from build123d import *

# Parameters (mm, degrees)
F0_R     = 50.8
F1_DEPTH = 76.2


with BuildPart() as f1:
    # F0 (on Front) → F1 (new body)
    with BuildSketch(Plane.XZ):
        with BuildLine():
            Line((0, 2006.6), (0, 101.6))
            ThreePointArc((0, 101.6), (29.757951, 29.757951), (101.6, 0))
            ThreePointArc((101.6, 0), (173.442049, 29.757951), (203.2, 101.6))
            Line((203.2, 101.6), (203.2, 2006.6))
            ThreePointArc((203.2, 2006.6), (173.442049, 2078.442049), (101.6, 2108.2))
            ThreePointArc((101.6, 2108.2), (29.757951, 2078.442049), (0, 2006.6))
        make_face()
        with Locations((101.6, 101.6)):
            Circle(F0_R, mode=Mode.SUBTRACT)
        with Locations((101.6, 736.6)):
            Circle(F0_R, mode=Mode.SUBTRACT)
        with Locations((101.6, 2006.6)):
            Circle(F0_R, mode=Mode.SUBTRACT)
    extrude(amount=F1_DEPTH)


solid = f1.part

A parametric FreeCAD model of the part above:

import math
import FreeCAD as App
import Part
import Sketcher
Q = App.Units.Quantity

doc = App.newDocument("Part")
body = doc.addObject("PartDesign::Body", "Body")

sketch1 = body.newObject("Sketcher::SketchObject", "Sketch")
sketch1.AttachmentSupport = (doc.getObject("XZ_Plane"), [""])
sketch1.MapMode = "FlatFace"
sketch1.addGeometry([
    Part.LineSegment(App.Vector(0, 2007, 0), App.Vector(0, 102, 0)),
    Part.ArcOfCircle(Part.Circle(App.Vector(102, 102, 0), App.Vector(0, 0, 1), 102), math.radians(180), math.radians(270)),
    Part.ArcOfCircle(Part.Circle(App.Vector(102, 102, 0), App.Vector(0, 0, 1), 102), math.radians(-90), math.radians(0)),
    Part.LineSegment(App.Vector(203, 102, 0), App.Vector(203, 2007, 0)),
    Part.ArcOfCircle(Part.Circle(App.Vector(102, 2007, 0), App.Vector(0, 0, 1), 102), math.radians(0), math.radians(90)),
    Part.ArcOfCircle(Part.Circle(App.Vector(102, 2007, 0), App.Vector(0, 0, 1), 102), math.radians(90), math.radians(180)),
    Part.Circle(App.Vector(102, 102, 0), App.Vector(0, 0, 1), 51),
    Part.Circle(App.Vector(102, 737, 0), App.Vector(0, 0, 1), 51),
    Part.Circle(App.Vector(102, 2007, 0), App.Vector(0, 0, 1), 51),
], False)
sketch1.addConstraint([
    Sketcher.Constraint("Tangent", 0, 2, 1, 1),
    Sketcher.Constraint("Tangent", 1, 2, 2, 1),
    Sketcher.Constraint("Tangent", 2, 2, 3, 1),
    Sketcher.Constraint("Tangent", 3, 2, 4, 1),
    Sketcher.Constraint("Tangent", 4, 2, 5, 1),
    Sketcher.Constraint("Tangent", 5, 2, 0, 1),
    Sketcher.Constraint("Vertical", 0),
    Sketcher.Constraint("Vertical", 3),
    Sketcher.Constraint("Coincident", 6, 3, 1, 3),
    Sketcher.Constraint("Coincident", 8, 3, 4, 3),
    Sketcher.Constraint("Equal", 1, 2),
    Sketcher.Constraint("Equal", 2, 4),
    Sketcher.Constraint("Equal", 6, 7),
    Sketcher.Constraint("Equal", 7, 8),
    Sketcher.Constraint("PointOnObject", 0, 2, -2),
    Sketcher.Constraint("PointOnObject", 1, 2, -1),
    Sketcher.Constraint("Vertical", 6, 3, 7, 3),
    Sketcher.Constraint("Vertical", 8, 3, 1, 2),
    Sketcher.Constraint("Vertical", 1, 2, 4, 2),
    Sketcher.Constraint("Diameter", 6, Q("4 in")),
    Sketcher.Constraint("Radius", 1, Q("4 in")),
    Sketcher.Constraint("DistanceY", 0, 2, 0, 1, Q("75 in")),
    Sketcher.Constraint("DistanceY", -1, 1, 7, 3, Q("29 in")),
])
pad1 = body.newObject("PartDesign::Pad", "Pad")
pad1.Profile = sketch1
pad1.Length = Q("3 in")

doc.recompute()
